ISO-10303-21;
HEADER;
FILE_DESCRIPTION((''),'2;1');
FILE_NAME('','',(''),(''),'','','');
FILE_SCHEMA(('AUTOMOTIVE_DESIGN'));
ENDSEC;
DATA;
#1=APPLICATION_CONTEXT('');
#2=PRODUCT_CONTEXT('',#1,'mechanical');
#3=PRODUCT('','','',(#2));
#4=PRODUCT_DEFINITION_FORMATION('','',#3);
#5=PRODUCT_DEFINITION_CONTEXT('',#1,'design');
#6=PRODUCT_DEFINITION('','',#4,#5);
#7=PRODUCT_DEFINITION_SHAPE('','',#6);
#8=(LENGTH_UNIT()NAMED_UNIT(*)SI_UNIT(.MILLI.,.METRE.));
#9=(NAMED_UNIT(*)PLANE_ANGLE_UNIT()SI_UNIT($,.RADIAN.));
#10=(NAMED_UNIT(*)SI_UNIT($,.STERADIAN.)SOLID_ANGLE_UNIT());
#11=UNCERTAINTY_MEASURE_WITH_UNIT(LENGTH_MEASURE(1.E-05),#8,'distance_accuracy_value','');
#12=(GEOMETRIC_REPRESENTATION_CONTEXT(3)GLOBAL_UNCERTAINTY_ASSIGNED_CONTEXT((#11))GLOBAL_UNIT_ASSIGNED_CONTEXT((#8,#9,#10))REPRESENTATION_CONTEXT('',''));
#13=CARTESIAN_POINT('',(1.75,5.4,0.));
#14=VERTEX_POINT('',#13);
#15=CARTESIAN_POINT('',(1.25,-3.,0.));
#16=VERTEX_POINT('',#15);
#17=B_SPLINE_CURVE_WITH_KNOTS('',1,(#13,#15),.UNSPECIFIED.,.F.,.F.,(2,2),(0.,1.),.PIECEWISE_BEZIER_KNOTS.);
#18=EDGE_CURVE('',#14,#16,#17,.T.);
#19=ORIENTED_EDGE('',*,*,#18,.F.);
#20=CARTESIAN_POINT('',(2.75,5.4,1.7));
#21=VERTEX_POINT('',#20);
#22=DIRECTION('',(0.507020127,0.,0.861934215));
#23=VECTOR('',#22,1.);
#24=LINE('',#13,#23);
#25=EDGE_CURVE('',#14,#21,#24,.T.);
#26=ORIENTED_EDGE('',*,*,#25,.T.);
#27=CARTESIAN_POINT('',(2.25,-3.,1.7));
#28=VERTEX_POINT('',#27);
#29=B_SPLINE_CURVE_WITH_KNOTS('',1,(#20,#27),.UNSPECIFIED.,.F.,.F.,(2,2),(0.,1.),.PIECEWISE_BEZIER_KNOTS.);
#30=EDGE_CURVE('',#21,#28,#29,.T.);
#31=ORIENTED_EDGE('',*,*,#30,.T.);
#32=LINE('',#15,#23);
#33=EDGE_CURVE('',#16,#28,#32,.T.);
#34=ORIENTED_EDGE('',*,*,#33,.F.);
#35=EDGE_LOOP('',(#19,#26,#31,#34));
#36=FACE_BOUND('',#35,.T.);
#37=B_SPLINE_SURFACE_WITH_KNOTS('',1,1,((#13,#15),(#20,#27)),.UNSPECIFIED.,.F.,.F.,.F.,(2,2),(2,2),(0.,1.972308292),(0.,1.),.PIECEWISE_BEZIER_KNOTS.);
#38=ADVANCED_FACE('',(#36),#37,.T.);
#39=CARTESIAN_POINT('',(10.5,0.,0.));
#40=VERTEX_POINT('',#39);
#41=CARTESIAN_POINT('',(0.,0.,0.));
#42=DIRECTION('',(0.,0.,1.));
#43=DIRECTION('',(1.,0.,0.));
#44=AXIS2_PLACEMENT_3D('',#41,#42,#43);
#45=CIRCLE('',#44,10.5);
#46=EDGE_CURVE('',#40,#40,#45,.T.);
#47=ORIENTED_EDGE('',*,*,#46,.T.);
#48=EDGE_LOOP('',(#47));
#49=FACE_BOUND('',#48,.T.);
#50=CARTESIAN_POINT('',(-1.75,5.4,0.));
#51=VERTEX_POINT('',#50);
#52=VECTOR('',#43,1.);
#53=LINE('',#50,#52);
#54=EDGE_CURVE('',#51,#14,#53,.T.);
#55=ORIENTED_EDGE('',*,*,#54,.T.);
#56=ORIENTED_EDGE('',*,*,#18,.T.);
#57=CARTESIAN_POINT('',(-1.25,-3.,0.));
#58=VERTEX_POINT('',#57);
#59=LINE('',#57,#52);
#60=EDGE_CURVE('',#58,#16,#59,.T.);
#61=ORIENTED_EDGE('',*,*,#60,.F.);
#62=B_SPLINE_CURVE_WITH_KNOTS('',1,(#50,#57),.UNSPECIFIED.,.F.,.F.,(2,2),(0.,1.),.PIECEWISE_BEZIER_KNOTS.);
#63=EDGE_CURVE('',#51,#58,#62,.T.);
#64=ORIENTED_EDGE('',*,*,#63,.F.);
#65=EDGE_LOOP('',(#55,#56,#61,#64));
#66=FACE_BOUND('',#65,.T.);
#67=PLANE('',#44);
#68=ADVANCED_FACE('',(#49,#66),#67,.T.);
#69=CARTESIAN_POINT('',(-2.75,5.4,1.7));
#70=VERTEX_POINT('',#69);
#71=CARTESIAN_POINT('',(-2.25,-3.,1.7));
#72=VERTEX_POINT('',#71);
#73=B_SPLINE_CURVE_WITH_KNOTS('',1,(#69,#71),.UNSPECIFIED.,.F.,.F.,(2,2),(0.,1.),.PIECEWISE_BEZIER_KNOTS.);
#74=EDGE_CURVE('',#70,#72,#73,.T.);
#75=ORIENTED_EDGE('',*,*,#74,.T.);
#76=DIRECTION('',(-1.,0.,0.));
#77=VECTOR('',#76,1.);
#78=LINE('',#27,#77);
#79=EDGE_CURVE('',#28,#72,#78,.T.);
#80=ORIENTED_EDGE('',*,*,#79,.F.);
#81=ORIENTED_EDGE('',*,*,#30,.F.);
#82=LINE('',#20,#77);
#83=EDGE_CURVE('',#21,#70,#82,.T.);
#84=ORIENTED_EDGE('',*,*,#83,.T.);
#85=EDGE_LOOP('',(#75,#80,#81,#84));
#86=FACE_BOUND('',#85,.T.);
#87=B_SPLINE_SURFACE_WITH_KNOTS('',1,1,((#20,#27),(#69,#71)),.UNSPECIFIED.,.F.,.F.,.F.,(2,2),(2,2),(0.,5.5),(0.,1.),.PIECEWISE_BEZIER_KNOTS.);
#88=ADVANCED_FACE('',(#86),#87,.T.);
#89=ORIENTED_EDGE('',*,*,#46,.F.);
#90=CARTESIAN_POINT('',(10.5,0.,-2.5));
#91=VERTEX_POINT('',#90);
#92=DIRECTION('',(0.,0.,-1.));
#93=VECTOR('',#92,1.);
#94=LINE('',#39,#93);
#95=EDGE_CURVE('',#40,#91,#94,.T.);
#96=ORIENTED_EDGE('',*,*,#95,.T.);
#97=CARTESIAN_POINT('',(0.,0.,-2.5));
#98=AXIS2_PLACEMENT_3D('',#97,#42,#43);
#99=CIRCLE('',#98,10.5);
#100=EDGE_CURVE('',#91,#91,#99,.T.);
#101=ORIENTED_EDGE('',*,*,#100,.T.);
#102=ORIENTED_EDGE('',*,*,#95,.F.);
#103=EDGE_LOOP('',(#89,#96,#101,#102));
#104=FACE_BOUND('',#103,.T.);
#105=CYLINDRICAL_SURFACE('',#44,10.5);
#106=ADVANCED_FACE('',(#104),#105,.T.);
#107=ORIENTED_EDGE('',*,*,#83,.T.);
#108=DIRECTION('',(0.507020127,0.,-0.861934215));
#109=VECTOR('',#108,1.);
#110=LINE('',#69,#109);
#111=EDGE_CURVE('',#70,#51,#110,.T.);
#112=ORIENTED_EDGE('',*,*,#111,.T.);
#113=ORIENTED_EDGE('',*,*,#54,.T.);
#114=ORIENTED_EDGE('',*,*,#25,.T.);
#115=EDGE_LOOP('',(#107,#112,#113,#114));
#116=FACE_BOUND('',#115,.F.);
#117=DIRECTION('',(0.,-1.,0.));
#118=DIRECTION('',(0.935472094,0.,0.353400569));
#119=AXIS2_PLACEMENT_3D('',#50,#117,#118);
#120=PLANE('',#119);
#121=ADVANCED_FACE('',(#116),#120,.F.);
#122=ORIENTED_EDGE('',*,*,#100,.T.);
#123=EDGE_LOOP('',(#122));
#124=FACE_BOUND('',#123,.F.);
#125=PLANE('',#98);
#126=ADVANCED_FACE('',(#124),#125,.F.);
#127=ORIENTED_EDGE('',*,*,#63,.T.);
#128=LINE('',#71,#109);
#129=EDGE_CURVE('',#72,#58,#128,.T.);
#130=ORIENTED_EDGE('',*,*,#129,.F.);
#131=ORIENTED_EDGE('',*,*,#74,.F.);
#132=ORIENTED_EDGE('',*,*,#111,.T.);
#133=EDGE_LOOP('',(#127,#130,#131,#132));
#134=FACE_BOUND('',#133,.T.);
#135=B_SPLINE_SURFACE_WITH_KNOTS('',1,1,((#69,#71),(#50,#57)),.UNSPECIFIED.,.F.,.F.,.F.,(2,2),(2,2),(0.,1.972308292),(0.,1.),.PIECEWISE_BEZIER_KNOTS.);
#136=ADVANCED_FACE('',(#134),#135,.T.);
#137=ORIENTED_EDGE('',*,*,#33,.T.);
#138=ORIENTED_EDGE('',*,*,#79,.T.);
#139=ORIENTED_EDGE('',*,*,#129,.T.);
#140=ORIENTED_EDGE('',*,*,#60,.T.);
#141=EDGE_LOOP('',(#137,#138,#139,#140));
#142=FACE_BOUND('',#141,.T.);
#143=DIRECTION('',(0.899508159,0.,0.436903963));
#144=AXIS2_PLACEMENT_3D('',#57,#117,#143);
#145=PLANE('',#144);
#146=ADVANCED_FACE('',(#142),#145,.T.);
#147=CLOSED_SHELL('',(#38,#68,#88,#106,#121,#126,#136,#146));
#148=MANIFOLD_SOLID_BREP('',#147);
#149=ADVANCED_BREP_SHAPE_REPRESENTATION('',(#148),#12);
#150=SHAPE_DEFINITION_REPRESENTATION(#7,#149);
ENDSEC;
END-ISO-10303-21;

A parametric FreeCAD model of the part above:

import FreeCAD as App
import Part
import Sketcher
from FreeCAD import Vector
Q = App.Units.Quantity


def add_polygon(sketch, points):
    """Adds a closed chain of lines whose ends are joined by coincident constraints."""
    first, n = sketch.GeometryCount, len(points)
    for a, b in zip(points, points[1:] + points[:1]):
        sketch.addGeometry(Part.LineSegment(App.Vector(*a, 0), App.Vector(*b, 0)), False)
    for i in range(n):
        sketch.addConstraint(Sketcher.Constraint("Coincident", first + i, 2, first + (i + 1) % n, 1))

doc = App.newDocument("Part")
body = doc.addObject("PartDesign::Body", "Body")

# Sketch on XY plane
sketch1 = body.newObject("Sketcher::SketchObject", "Sketch")
sketch1.AttachmentSupport = (doc.getObject("XY_Plane"), [""])
sketch1.MapMode = "FlatFace"
sketch1.addGeometry(Part.Circle(Vector(0, 0, 0), Vector(0, 0, 1), 10.5), False)
sketch1.addConstraint(Sketcher.Constraint("Coincident", 0, 3, -1, 1))
sketch1.addConstraint(Sketcher.Constraint("Diameter", 0, Q("21 mm")))
pad1 = body.newObject("PartDesign::Pad", "Pad")
pad1.Profile = sketch1
pad1.Length = 2.5
pad1.Reversed = True

# Sketch on XZ plane
sketch2 = body.newObject("Sketcher::SketchObject", "Sketch001")
sketch2.AttachmentSupport = (doc.getObject("XZ_Plane"), [""])
sketch2.MapMode = "FlatFace"
sketch2.AttachmentOffset = App.Placement(Vector(0, 0, -5.4), App.Rotation())
add_polygon(sketch2, [(-1.75, 0), (1.75, 0), (2.75, 1.7), (-2.75, 1.7)])  # lines 0-3
sketch2.addConstraint(Sketcher.Constraint("Horizontal", 0))
sketch2.addConstraint(Sketcher.Constraint("Horizontal", 2))
sketch2.addConstraint(Sketcher.Constraint("Symmetric", 0, 2, 3, 2, -1, 1))
sketch2.addConstraint(Sketcher.Constraint("Equal", 1, 3))
sketch2.addConstraint(Sketcher.Constraint("DistanceX", 0, 1, 0, 2, Q("3.5 mm")))
sketch2.addConstraint(Sketcher.Constraint("DistanceX", 2, 2, 2, 1, Q("5.5 mm")))
sketch2.addConstraint(Sketcher.Constraint("DistanceY", -1, 1, 1, 2, Q("1.7 mm")))

# Sketch on XZ plane
sketch3 = body.newObject("Sketcher::SketchObject", "Sketch002")
sketch3.AttachmentSupport = (doc.getObject("XZ_Plane"), [""])
sketch3.MapMode = "FlatFace"
sketch3.AttachmentOffset = App.Placement(Vector(0, 0, 3), App.Rotation())
add_polygon(sketch3, [(-1.25, 0), (1.25, 0), (2.25, 1.7), (-2.25, 1.7)])  # lines 0-3
sketch3.addConstraint(Sketcher.Constraint("Horizontal", 0))
sketch3.addConstraint(Sketcher.Constraint("Horizontal", 2))
sketch3.addConstraint(Sketcher.Constraint("Symmetric", 0, 2, 3, 2, -1, 1))
sketch3.addConstraint(Sketcher.Constraint("Equal", 1, 3))
sketch3.addConstraint(Sketcher.Constraint("DistanceX", 0, 1, 0, 2, Q("2.5 mm")))
sketch3.addConstraint(Sketcher.Constraint("DistanceX", 2, 2, 2, 1, Q("4.5 mm")))
sketch3.addConstraint(Sketcher.Constraint("DistanceY", -1, 1, 1, 2, Q("1.7 mm")))

additiveloft = body.newObject("PartDesign::AdditiveLoft", "AdditiveLoft")
additiveloft.Profile = sketch2
additiveloft.Sections = [sketch3]

doc.recompute()
